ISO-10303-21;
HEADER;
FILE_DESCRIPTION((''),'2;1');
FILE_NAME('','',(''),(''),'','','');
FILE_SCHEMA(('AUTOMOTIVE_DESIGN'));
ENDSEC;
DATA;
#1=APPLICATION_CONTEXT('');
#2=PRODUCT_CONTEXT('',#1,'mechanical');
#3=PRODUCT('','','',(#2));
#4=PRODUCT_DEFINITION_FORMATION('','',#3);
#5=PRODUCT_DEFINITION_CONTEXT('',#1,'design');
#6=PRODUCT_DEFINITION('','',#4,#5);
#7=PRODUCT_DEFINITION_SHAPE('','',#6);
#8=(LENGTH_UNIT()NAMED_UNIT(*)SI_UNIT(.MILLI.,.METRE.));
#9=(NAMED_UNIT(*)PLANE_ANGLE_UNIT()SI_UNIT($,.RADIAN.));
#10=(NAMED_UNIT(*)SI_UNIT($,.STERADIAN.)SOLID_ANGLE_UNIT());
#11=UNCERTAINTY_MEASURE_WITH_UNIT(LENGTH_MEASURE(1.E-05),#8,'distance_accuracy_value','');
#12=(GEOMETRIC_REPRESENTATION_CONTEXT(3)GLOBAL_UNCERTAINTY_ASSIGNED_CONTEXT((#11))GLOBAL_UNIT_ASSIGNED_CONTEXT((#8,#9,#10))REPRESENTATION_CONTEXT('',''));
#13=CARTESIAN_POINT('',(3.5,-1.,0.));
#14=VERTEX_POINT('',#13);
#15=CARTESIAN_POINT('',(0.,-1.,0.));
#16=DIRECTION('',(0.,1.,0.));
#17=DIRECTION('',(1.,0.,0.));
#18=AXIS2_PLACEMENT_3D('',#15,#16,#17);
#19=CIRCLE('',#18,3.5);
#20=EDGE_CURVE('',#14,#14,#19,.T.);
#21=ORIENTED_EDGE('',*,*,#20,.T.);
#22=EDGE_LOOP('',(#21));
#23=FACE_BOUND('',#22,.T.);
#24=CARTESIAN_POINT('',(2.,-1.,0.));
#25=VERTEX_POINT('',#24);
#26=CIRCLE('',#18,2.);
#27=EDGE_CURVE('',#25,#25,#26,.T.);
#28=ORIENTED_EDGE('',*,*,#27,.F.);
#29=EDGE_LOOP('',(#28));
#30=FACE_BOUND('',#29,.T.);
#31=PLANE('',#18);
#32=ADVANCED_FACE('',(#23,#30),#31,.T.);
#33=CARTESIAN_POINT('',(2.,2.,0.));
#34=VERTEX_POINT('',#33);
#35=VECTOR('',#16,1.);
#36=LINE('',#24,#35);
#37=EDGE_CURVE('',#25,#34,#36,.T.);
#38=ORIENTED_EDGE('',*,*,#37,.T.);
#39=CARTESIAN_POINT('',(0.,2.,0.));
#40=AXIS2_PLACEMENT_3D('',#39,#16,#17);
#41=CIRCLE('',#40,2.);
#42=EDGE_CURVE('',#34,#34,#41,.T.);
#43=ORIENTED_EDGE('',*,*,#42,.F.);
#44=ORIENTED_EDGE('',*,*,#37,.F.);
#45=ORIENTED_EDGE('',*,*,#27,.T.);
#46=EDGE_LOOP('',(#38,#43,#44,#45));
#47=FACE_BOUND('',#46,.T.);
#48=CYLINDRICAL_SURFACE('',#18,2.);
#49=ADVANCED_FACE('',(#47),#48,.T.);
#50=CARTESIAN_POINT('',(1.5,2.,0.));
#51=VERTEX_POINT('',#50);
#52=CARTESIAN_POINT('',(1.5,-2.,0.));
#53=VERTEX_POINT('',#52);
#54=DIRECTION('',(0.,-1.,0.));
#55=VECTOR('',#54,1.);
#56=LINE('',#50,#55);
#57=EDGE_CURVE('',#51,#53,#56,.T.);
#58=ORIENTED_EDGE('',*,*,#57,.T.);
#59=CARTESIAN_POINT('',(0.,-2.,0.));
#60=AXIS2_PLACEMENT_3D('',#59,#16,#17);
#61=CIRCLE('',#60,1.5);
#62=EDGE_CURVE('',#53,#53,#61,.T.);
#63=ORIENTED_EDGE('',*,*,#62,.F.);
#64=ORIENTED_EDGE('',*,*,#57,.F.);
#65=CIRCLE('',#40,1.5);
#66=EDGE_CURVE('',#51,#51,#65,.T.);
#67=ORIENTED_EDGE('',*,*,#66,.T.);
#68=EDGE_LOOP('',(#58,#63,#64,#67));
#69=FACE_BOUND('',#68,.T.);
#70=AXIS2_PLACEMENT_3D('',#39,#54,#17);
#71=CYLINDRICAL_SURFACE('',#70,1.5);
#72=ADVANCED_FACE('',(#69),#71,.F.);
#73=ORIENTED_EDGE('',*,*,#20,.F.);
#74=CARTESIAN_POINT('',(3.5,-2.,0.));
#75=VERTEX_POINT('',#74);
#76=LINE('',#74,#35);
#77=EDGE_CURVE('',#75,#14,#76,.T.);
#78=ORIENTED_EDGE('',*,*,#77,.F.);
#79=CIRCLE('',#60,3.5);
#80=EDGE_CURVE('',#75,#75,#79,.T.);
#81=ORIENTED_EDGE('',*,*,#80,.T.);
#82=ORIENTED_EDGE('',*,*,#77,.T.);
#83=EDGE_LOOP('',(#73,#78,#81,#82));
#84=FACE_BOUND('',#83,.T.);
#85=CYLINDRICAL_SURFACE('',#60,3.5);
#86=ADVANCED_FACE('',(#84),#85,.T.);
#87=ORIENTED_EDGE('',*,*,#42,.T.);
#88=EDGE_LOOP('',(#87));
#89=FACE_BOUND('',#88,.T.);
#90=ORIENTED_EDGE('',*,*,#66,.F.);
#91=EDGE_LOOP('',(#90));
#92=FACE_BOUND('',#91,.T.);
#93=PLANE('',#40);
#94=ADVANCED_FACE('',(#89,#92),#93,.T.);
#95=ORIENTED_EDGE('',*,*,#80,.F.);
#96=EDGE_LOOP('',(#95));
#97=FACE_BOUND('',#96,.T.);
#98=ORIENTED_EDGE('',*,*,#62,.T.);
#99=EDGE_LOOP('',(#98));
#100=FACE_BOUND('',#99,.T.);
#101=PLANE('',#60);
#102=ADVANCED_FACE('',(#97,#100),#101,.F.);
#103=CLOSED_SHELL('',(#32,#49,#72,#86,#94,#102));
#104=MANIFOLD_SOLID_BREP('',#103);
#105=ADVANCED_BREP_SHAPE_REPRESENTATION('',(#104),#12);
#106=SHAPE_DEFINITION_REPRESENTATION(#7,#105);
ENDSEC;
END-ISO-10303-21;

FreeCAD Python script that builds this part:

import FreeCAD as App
import Part
import Sketcher
from FreeCAD import Vector

doc = App.newDocument("Part")
body = doc.addObject("PartDesign::Body", "Body")

# Sketch on XY plane
sketch1 = body.newObject("Sketcher::SketchObject", "Sketch")
sketch1.AttachmentSupport = (doc.getObject("XY_Plane"), [""])
sketch1.MapMode = "FlatFace"
sketch1.addGeometry([
    Part.LineSegment(Vector(2, 2, 0), Vector(1.5, 2, 0)),  # 0
    Part.LineSegment(Vector(1.5, 2, 0), Vector(1.5, -2, 0)),  # 1
    Part.LineSegment(Vector(1.5, -2, 0), Vector(3.5, -2, 0)),  # 2
    Part.LineSegment(Vector(3.5, -2, 0), Vector(3.5, -1, 0)),  # 3
    Part.LineSegment(Vector(3.5, -1, 0), Vector(2, -1, 0)),  # 4
    Part.LineSegment(Vector(2, -1, 0), Vector(2, 2, 0)),  # 5
], False)
sketch1.addConstraint([
    Sketcher.Constraint("Coincident", 0, 2, 1, 1),
    Sketcher.Constraint("Coincident", 1, 2, 2, 1),
    Sketcher.Constraint("Coincident", 2, 2, 3, 1),
    Sketcher.Constraint("Coincident", 3, 2, 4, 1),
    Sketcher.Constraint("Coincident", 4, 2, 5, 1),
    Sketcher.Constraint("Coincident", 5, 2, 0, 1),
    Sketcher.Constraint("Horizontal", 0),
    Sketcher.Constraint("Vertical", 1),
    Sketcher.Constraint("Horizontal", 2),
    Sketcher.Constraint("Vertical", 3),
    Sketcher.Constraint("Horizontal", 4),
    Sketcher.Constraint("Vertical", 5),
    Sketcher.Constraint("DistanceX", 2, 1, 2, 2, 2.0),
    Sketcher.Constraint("DistanceY", 3, 1, 3, 2, 1.0),
    Sketcher.Constraint("DistanceY", 5, 1, 5, 2, 3.0),
    Sketcher.Constraint("DistanceX", 4, 2, 4, 1, 1.5),
    Sketcher.Constraint("DistanceY", -1, 1, 0, 2, 2.0),
    Sketcher.Constraint("DistanceX", -1, 1, 4, 2, 2.0),
])
revolution = body.newObject("PartDesign::Revolution", "Revolution")
revolution.Profile = sketch1
revolution.ReferenceAxis = (sketch1, ["V_Axis"])
revolution.Angle = 360

doc.recompute()
